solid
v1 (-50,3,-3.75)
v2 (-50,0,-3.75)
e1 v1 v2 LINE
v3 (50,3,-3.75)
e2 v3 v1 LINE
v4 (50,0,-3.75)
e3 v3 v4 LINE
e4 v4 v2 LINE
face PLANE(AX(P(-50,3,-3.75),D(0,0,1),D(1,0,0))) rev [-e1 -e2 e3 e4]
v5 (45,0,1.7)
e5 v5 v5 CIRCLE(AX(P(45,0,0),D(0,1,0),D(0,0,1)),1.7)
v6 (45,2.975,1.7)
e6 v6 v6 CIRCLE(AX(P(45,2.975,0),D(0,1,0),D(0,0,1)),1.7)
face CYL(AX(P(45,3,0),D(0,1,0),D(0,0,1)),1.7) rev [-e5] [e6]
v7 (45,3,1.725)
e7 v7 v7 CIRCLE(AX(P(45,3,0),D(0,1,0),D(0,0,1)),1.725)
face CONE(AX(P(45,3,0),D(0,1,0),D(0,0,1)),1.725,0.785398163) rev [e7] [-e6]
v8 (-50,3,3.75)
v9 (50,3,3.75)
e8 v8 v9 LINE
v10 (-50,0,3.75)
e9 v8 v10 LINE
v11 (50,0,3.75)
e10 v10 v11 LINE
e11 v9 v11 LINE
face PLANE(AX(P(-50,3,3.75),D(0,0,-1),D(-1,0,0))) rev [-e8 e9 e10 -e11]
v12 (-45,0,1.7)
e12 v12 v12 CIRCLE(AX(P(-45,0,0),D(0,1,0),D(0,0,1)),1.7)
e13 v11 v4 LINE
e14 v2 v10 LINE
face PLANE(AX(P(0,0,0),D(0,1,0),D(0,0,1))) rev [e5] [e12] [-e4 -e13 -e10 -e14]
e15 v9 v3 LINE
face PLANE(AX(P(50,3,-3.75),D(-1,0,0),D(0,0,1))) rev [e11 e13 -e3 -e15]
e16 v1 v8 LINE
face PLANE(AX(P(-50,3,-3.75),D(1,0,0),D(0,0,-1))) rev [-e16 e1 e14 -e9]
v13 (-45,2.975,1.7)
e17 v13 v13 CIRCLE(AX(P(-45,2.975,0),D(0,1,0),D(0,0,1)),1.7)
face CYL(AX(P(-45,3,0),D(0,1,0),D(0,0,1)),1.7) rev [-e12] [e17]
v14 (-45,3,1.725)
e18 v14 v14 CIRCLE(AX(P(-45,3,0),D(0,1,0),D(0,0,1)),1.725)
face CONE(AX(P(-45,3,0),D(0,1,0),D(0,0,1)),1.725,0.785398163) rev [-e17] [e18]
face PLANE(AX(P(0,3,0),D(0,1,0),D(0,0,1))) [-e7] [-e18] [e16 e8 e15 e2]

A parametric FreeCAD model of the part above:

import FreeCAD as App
import Part
import Sketcher
Q = App.Units.Quantity

doc = App.newDocument("Part")
body = doc.addObject("PartDesign::Body", "Body")

# Sketch on XZ plane
sketch1 = body.newObject("Sketcher::SketchObject", "Sketch")
sketch1.AttachmentSupport = (doc.getObject("XZ_Plane"), [""])
sketch1.MapMode = "FlatFace"
sketch1.addGeometry([
    Part.LineSegment(App.Vector(-50, -4, 0), App.Vector(-50, 4, 0)),
    Part.LineSegment(App.Vector(-50, 4, 0), App.Vector(50, 4, 0)),
    Part.LineSegment(App.Vector(50, 4, 0), App.Vector(50, -4, 0)),
    Part.LineSegment(App.Vector(50, -4, 0), App.Vector(-50, -4, 0)),
], False)
sketch1.addConstraint([
    Sketcher.Constraint("Coincident", 0, 2, 1, 1),
    Sketcher.Constraint("Coincident", 1, 2, 2, 1),
    Sketcher.Constraint("Coincident", 2, 2, 3, 1),
    Sketcher.Constraint("Coincident", 3, 2, 0, 1),
    Sketcher.Constraint("Vertical", 0),
    Sketcher.Constraint("Horizontal", 1),
    Sketcher.Constraint("Vertical", 2),
    Sketcher.Constraint("Horizontal", 3),
    Sketcher.Constraint("Symmetric", 0, 2, 2, 2, -1, 1),
    Sketcher.Constraint("DistanceX", 1, 1, 1, 2, Q("100 mm")),
    Sketcher.Constraint("DistanceY", 0, 1, 0, 2, Q("7.5 mm")),
])
pad1 = body.newObject("PartDesign::Pad", "Pad")
pad1.Profile = sketch1
pad1.Length = 3
pad1.Reversed = True

# Sketch on XZ plane
sketch2 = body.newObject("Sketcher::SketchObject", "Sketch001")
sketch2.AttachmentSupport = (doc.getObject("XZ_Plane"), [""])
sketch2.MapMode = "FlatFace"
sketch2.AttachmentOffset = App.Placement(App.Vector(0, 0, -3), App.Rotation())
sketch2.addGeometry([
    Part.Circle(App.Vector(-45, 0, 0), App.Vector(0, 0, 1), 1.7),
    Part.Circle(App.Vector(45, 0, 0), App.Vector(0, 0, 1), 1.7),
], False)
sketch2.addConstraint([
    Sketcher.Constraint("Equal", 0, 1),
    Sketcher.Constraint("Symmetric", 0, 3, 1, 3, -1, 1),
    Sketcher.Constraint("PointOnObject", 0, 3, -1),
    Sketcher.Constraint("Diameter", 0, Q("3.4 mm")),
    Sketcher.Constraint("DistanceX", 0, 3, -1, 1, Q("45 mm")),
])
doc.recompute()
hole = body.newObject("PartDesign::Hole", "Hole")
hole.Profile = sketch2
hole.ThreadType = "None"
hole.Diameter = 3.4
hole.DepthType = "ThroughAll"
hole.HoleCutType = "Countersink"
hole.HoleCutDiameter = 3.45
hole.HoleCutCountersinkAngle = 90
hole.Reversed = True

doc.recompute()
